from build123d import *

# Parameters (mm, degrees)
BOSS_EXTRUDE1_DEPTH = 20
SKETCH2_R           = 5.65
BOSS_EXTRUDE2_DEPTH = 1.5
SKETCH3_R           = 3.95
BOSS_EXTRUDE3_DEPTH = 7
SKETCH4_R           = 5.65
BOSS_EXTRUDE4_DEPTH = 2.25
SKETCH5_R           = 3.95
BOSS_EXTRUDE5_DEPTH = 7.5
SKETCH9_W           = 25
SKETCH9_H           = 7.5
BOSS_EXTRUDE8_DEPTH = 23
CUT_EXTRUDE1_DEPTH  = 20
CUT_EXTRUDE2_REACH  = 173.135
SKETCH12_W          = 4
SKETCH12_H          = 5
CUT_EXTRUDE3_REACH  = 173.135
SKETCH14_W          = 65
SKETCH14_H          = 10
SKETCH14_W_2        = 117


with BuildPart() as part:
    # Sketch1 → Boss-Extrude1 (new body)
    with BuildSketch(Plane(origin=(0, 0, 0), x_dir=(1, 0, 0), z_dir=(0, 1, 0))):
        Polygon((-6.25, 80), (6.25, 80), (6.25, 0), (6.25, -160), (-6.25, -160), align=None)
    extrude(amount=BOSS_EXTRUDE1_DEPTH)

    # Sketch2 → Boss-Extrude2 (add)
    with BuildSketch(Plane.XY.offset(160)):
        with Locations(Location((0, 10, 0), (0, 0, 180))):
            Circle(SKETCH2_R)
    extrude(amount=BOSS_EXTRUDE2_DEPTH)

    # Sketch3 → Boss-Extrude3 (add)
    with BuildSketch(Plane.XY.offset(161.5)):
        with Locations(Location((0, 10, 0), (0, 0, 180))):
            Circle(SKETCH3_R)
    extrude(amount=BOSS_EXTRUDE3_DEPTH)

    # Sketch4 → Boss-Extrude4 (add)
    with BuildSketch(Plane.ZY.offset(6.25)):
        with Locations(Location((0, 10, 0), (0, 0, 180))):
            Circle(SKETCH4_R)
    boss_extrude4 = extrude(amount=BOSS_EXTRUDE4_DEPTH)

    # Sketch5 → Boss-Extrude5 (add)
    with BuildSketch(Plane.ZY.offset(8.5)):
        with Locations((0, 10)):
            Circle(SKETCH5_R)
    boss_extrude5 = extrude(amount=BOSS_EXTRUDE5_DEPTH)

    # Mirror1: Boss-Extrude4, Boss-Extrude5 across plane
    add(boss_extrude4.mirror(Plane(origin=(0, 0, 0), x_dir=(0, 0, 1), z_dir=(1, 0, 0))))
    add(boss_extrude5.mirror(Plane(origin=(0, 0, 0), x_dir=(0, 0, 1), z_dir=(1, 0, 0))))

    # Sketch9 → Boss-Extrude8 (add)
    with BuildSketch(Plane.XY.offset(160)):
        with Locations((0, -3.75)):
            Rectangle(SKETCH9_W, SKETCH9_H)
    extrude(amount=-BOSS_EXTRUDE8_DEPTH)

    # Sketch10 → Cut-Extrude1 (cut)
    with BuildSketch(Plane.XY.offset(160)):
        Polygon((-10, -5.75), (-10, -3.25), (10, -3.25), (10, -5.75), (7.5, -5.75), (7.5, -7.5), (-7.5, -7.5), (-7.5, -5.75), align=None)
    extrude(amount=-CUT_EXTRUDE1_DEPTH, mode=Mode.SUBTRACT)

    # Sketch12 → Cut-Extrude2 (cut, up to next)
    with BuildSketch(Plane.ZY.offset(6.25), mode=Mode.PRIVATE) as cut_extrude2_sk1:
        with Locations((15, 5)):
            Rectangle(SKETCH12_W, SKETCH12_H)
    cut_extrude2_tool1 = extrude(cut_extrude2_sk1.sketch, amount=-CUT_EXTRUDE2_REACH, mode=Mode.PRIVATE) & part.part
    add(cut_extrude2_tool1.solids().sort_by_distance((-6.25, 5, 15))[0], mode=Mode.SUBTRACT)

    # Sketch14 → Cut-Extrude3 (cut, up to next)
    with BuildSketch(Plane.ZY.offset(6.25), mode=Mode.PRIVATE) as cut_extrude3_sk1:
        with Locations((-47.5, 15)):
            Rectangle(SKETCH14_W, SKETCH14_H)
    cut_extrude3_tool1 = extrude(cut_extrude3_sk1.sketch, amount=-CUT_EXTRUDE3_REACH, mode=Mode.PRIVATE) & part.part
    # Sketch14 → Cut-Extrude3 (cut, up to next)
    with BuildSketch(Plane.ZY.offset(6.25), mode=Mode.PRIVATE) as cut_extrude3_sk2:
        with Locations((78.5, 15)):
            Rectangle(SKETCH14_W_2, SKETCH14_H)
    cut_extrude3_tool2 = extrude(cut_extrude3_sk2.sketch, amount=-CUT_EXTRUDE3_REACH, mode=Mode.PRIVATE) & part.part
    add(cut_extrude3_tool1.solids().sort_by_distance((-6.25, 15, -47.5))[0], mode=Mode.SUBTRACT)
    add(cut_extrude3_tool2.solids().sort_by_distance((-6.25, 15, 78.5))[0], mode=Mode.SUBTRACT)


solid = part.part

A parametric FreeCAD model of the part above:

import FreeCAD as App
import Part
import Sketcher
from FreeCAD import Vector

doc = App.newDocument("Part")
params = doc.addObject("Spreadsheet::Sheet", "Params")
for row, (alias, value) in enumerate([
    ("sketch1_height", "240 mm"),
    ("sketch1_width", "12.5 mm"),
    ("pad1_length", "20 mm"),
    ("sketch2_diameter", "11.3 mm"),
    ("pad2_length", "1.5 mm"),
    ("sketch3_diameter", "7.9 mm"),
    ("pad3_length", "7 mm"),
    ("sketch4_diameter", "11.3 mm"),
    ("pad4_length", "2.25 mm"),
    ("sketch5_diameter", "7.9 mm"),
    ("pad5_length", "7.5 mm"),
    ("sketch6_width", "25 mm"),
    ("sketch6_height", "7.5 mm"),
    ("pad6_length", "23 mm"),
    ("sketch7_width", "15 mm"),
    ("sketch7_width2", "20 mm"),
    ("sketch7_height", "1.75 mm"),
    ("pocket1_length", "20 mm"),
    ("sketch8_width", "5 mm"),
    ("sketch8_height", "4 mm"),
    ("sketch9_width", "10 mm"),
    ("sketch9_height", "65 mm"),
    ("sketch10_width", "10 mm"),
    ("sketch10_height", "117 mm"),
], start=1):
    params.set(f"A{row}", alias)
    params.set(f"B{row}", "=" + value)
    params.setAlias(f"B{row}", alias)

body = doc.addObject("PartDesign::Body", "Body")

# Sketch on XZ plane
sketch1 = doc.addObject("Sketcher::SketchObject", "Sketch")
body.addObject(sketch1)
sketch1.AttachmentSupport = (doc.XZ_Plane, [""])
sketch1.MapMode = "FlatFace"
sketch1.addGeometry([
    Part.LineSegment(Vector(6, -80, 0), Vector(-6, -80, 0)),
    Part.LineSegment(Vector(-6, -80, 0), Vector(-6, 160, 0)),
    Part.LineSegment(Vector(-6, 160, 0), Vector(6, 160, 0)),
    Part.LineSegment(Vector(6, 160, 0), Vector(6, -80, 0)),
], False)
sketch1.addConstraint([
    Sketcher.Constraint("Coincident", 0, 2, 1, 1),
    Sketcher.Constraint("Coincident", 1, 2, 2, 1),
    Sketcher.Constraint("Coincident", 2, 2, 3, 1),
    Sketcher.Constraint("Coincident", 3, 2, 0, 1),
    Sketcher.Constraint("Horizontal", 0),
    Sketcher.Constraint("Vertical", 1),
    Sketcher.Constraint("Horizontal", 2),
    Sketcher.Constraint("Vertical", 3),
    Sketcher.Constraint("DistanceY", 1, 1, 1, 2, 240.0),
    Sketcher.Constraint("DistanceX", 0, 2, 0, 1, 12.5),
    Sketcher.Constraint("DistanceY", 0, 2, -1, 1, 80.0),
    Sketcher.Constraint("DistanceX", 0, 2, -1, 1, 6.25),
])
sketch1.setExpression("Constraints[8]", "Params.sketch1_height")
sketch1.setExpression("Constraints[9]", "Params.sketch1_width")
pad1 = doc.addObject("PartDesign::Pad", "Pad")
body.addObject(pad1)
pad1.Profile = sketch1
pad1.setExpression("Length", "Params.pad1_length")
pad1.Reversed = True

# Sketch on XY plane
sketch2 = doc.addObject("Sketcher::SketchObject", "Sketch001")
body.addObject(sketch2)
sketch2.AttachmentSupport = (doc.XY_Plane, [""])
sketch2.MapMode = "FlatFace"
sketch2.AttachmentOffset = App.Placement(Vector(0, 0, 160), App.Rotation())
sketch2.addGeometry(Part.Circle(Vector(0, 10, 0), Vector(0, 0, 1), 6), False)
sketch2.addConstraint([
    Sketcher.Constraint("PointOnObject", 0, 3, -2),
    Sketcher.Constraint("Diameter", 0, 11.3),
    Sketcher.Constraint("DistanceY", -1, 1, 0, 3, 10.0),
])
sketch2.setExpression("Constraints[1]", "Params.sketch2_diameter")
pad2 = doc.addObject("PartDesign::Pad", "Pad001")
body.addObject(pad2)
pad2.Profile = sketch2
pad2.setExpression("Length", "Params.pad2_length")

# Sketch on XY plane
sketch3 = doc.addObject("Sketcher::SketchObject", "Sketch002")
body.addObject(sketch3)
sketch3.AttachmentSupport = (doc.XY_Plane, [""])
sketch3.MapMode = "FlatFace"
sketch3.AttachmentOffset = App.Placement(Vector(0, 0, 161.5), App.Rotation())
sketch3.addGeometry(Part.Circle(Vector(0, 10, 0), Vector(0, 0, 1), 4), False)
sketch3.addConstraint([
    Sketcher.Constraint("PointOnObject", 0, 3, -2),
    Sketcher.Constraint("Diameter", 0, 7.9),
    Sketcher.Constraint("DistanceY", -1, 1, 0, 3, 10.0),
])
sketch3.setExpression("Constraints[1]", "Params.sketch3_diameter")
pad3 = doc.addObject("PartDesign::Pad", "Pad002")
body.addObject(pad3)
pad3.Profile = sketch3
pad3.setExpression("Length", "Params.pad3_length")

# Sketch on YZ plane
sketch4 = doc.addObject("Sketcher::SketchObject", "Sketch003")
body.addObject(sketch4)
sketch4.AttachmentSupport = (doc.YZ_Plane, [""])
sketch4.MapMode = "FlatFace"
sketch4.AttachmentOffset = App.Placement(Vector(0, 0, -6.25), App.Rotation())
sketch4.addGeometry(Part.Circle(Vector(10, 0, 0), Vector(0, 0, 1), 6), False)
sketch4.addConstraint([
    Sketcher.Constraint("PointOnObject", 0, 3, -1),
    Sketcher.Constraint("Diameter", 0, 11.3),
    Sketcher.Constraint("DistanceX", -1, 1, 0, 3, 10.0),
])
sketch4.setExpression("Constraints[1]", "Params.sketch4_diameter")
pad4 = doc.addObject("PartDesign::Pad", "Pad003")
body.addObject(pad4)
pad4.Profile = sketch4
pad4.setExpression("Length", "Params.pad4_length")
pad4.Reversed = True

# Sketch on YZ plane
sketch5 = doc.addObject("Sketcher::SketchObject", "Sketch004")
body.addObject(sketch5)
sketch5.AttachmentSupport = (doc.YZ_Plane, [""])
sketch5.MapMode = "FlatFace"
sketch5.AttachmentOffset = App.Placement(Vector(0, 0, -8.5), App.Rotation())
sketch5.addGeometry(Part.Circle(Vector(10, 0, 0), Vector(0, 0, 1), 4), False)
sketch5.addConstraint([
    Sketcher.Constraint("PointOnObject", 0, 3, -1),
    Sketcher.Constraint("Diameter", 0, 7.9),
    Sketcher.Constraint("DistanceX", -1, 1, 0, 3, 10.0),
])
sketch5.setExpression("Constraints[1]", "Params.sketch5_diameter")
pad5 = doc.addObject("PartDesign::Pad", "Pad004")
body.addObject(pad5)
pad5.Profile = sketch5
pad5.setExpression("Length", "Params.pad5_length")
pad5.Reversed = True
doc.recompute()

mirrored = doc.addObject("PartDesign::Mirrored", "Mirrored")
body.addObject(mirrored)
mirrored.Originals = [pad4, pad5]
mirrored.MirrorPlane = (doc.YZ_Plane, [""])
body.Tip = mirrored

# Sketch on XY plane
sketch6 = doc.addObject("Sketcher::SketchObject", "Sketch005")
body.addObject(sketch6)
sketch6.AttachmentSupport = (doc.XY_Plane, [""])
sketch6.MapMode = "FlatFace"
sketch6.AttachmentOffset = App.Placement(Vector(0, 0, 160), App.Rotation())
sketch6.addGeometry([
    Part.LineSegment(Vector(-12, 0, 0), Vector(-12, -8, 0)),
    Part.LineSegment(Vector(-12, -8, 0), Vector(12, -8, 0)),
    Part.LineSegment(Vector(12, -8, 0), Vector(12, 0, 0)),
    Part.LineSegment(Vector(12, 0, 0), Vector(-12, 0, 0)),
], False)
sketch6.addConstraint([
    Sketcher.Constraint("Coincident", 0, 2, 1, 1),
    Sketcher.Constraint("Coincident", 1, 2, 2, 1),
    Sketcher.Constraint("Coincident", 2, 2, 3, 1),
    Sketcher.Constraint("Coincident", 3, 2, 0, 1),
    Sketcher.Constraint("Vertical", 0),
    Sketcher.Constraint("Horizontal", 1),
    Sketcher.Constraint("Vertical", 2),
    Sketcher.Constraint("Horizontal", 3),
    Sketcher.Constraint("Symmetric", 2, 2, 3, 2, -1, 1),
    Sketcher.Constraint("DistanceX", 1, 1, 1, 2, 25.0),
    Sketcher.Constraint("DistanceY", 0, 2, 0, 1, 7.5),
])
sketch6.setExpression("Constraints[9]", "Params.sketch6_width")
sketch6.setExpression("Constraints[10]", "Params.sketch6_height")
pad6 = doc.addObject("PartDesign::Pad", "Pad005")
body.addObject(pad6)
pad6.Profile = sketch6
pad6.setExpression("Length", "Params.pad6_length")
pad6.Reversed = True

# Sketch on XY plane
sketch7 = doc.addObject("Sketcher::SketchObject", "Sketch006")
body.addObject(sketch7)
sketch7.AttachmentSupport = (doc.XY_Plane, [""])
sketch7.MapMode = "FlatFace"
sketch7.AttachmentOffset = App.Placement(Vector(0, 0, 160), App.Rotation())
sketch7.addGeometry([
    Part.LineSegment(Vector(-10, -3.2, 0), Vector(-10, -5.8, 0)),  # 0
    Part.LineSegment(Vector(-10, -5.8, 0), Vector(-7.5, -5.8, 0)),  # 1
    Part.LineSegment(Vector(-7.5, -5.8, 0), Vector(-7.5, -7.5, 0)),  # 2
    Part.LineSegment(Vector(-7.5, -7.5, 0), Vector(7.5, -7.5, 0)),  # 3
    Part.LineSegment(Vector(7.5, -7.5, 0), Vector(7.5, -5.8, 0)),  # 4
    Part.LineSegment(Vector(7.5, -5.8, 0), Vector(10, -5.8, 0)),  # 5
    Part.LineSegment(Vector(10, -5.8, 0), Vector(10, -3.2, 0)),  # 6
    Part.LineSegment(Vector(10, -3.2, 0), Vector(-10, -3.2, 0)),  # 7
], False)
sketch7.addConstraint([
    Sketcher.Constraint("Coincident", 0, 2, 1, 1),
    Sketcher.Constraint("Coincident", 1, 2, 2, 1),
    Sketcher.Constraint("Coincident", 2, 2, 3, 1),
    Sketcher.Constraint("Coincident", 3, 2, 4, 1),
    Sketcher.Constraint("Coincident", 4, 2, 5, 1),
    Sketcher.Constraint("Coincident", 5, 2, 6, 1),
    Sketcher.Constraint("Coincident", 6, 2, 7, 1),
    Sketcher.Constraint("Coincident", 7, 2, 0, 1),
    Sketcher.Constraint("Vertical", 0),
    Sketcher.Constraint("Horizontal", 1),
    Sketcher.Constraint("Vertical", 2),
    Sketcher.Constraint("Horizontal", 3),
    Sketcher.Constraint("Vertical", 4),
    Sketcher.Constraint("Horizontal", 5),
    Sketcher.Constraint("Vertical", 6),
    Sketcher.Constraint("Horizontal", 7),
    Sketcher.Constraint("Symmetric", 1, 2, 4, 2, -2),
    Sketcher.Constraint("Equal", 1, 5),
    Sketcher.Constraint("Equal", 5, 0),
    Sketcher.Constraint("DistanceX", 3, 1, 3, 2, 15.0),
    Sketcher.Constraint("DistanceX", 7, 2, 7, 1, 20.0),
    Sketcher.Constraint("DistanceY", 2, 2, 2, 1, 1.75),
    Sketcher.Constraint("DistanceY", 2, 2, -1, 1, 7.5),
])
sketch7.setExpression("Constraints[19]", "Params.sketch7_width")
sketch7.setExpression("Constraints[20]", "Params.sketch7_width2")
sketch7.setExpression("Constraints[21]", "Params.sketch7_height")
pocket1 = doc.addObject("PartDesign::Pocket", "Pocket")
body.addObject(pocket1)
pocket1.Profile = sketch7
pocket1.setExpression("Length", "Params.pocket1_length")

# Sketch on YZ plane
sketch8 = doc.addObject("Sketcher::SketchObject", "Sketch007")
body.addObject(sketch8)
sketch8.AttachmentSupport = (doc.YZ_Plane, [""])
sketch8.MapMode = "FlatFace"
sketch8.AttachmentOffset = App.Placement(Vector(0, 0, -6.25), App.Rotation())
sketch8.addGeometry([
    Part.LineSegment(Vector(7.5, 13, 0), Vector(2.5, 13, 0)),
    Part.LineSegment(Vector(2.5, 13, 0), Vector(2.5, 17, 0)),
    Part.LineSegment(Vector(2.5, 17, 0), Vector(7.5, 17, 0)),
    Part.LineSegment(Vector(7.5, 17, 0), Vector(7.5, 13, 0)),
], False)
sketch8.addConstraint([
    Sketcher.Constraint("Coincident", 0, 2, 1, 1),
    Sketcher.Constraint("Coincident", 1, 2, 2, 1),
    Sketcher.Constraint("Coincident", 2, 2, 3, 1),
    Sketcher.Constraint("Coincident", 3, 2, 0, 1),
    Sketcher.Constraint("Horizontal", 0),
    Sketcher.Constraint("Vertical", 1),
    Sketcher.Constraint("Horizontal", 2),
    Sketcher.Constraint("Vertical", 3),
    Sketcher.Constraint("DistanceX", 0, 2, 0, 1, 5.0),
    Sketcher.Constraint("DistanceY", 1, 1, 1, 2, 4.0),
    Sketcher.Constraint("DistanceY", -1, 1, 0, 2, 13.0),
    Sketcher.Constraint("DistanceX", -1, 1, 0, 2, 2.5),
])
sketch8.setExpression("Constraints[8]", "Params.sketch8_width")
sketch8.setExpression("Constraints[9]", "Params.sketch8_height")
pocket2 = doc.addObject("PartDesign::Pocket", "Pocket001")
body.addObject(pocket2)
pocket2.Profile = sketch8
pocket2.Type = "UpToFirst"
pocket2.Reversed = True

# Sketch on YZ plane
sketch9 = doc.addObject("Sketcher::SketchObject", "Sketch008")
body.addObject(sketch9)
sketch9.AttachmentSupport = (doc.YZ_Plane, [""])
sketch9.MapMode = "FlatFace"
sketch9.AttachmentOffset = App.Placement(Vector(0, 0, -6.25), App.Rotation())
sketch9.addGeometry([
    Part.LineSegment(Vector(20, -80, 0), Vector(10, -80, 0)),
    Part.LineSegment(Vector(10, -80, 0), Vector(10, -15, 0)),
    Part.LineSegment(Vector(10, -15, 0), Vector(20, -15, 0)),
    Part.LineSegment(Vector(20, -15, 0), Vector(20, -80, 0)),
], False)
sketch9.addConstraint([
    Sketcher.Constraint("Coincident", 0, 2, 1, 1),
    Sketcher.Constraint("Coincident", 1, 2, 2, 1),
    Sketcher.Constraint("Coincident", 2, 2, 3, 1),
    Sketcher.Constraint("Coincident", 3, 2, 0, 1),
    Sketcher.Constraint("Horizontal", 0),
    Sketcher.Constraint("Vertical", 1),
    Sketcher.Constraint("Horizontal", 2),
    Sketcher.Constraint("Vertical", 3),
    Sketcher.Constraint("DistanceX", 0, 2, 0, 1, 10.0),
    Sketcher.Constraint("DistanceY", 1, 1, 1, 2, 65.0),
    Sketcher.Constraint("DistanceX", -1, 1, 0, 2, 10.0),
    Sketcher.Constraint("DistanceY", 0, 2, -1, 1, 80.0),
])
sketch9.setExpression("Constraints[8]", "Params.sketch9_width")
sketch9.setExpression("Constraints[9]", "Params.sketch9_height")
pocket3 = doc.addObject("PartDesign::Pocket", "Pocket002")
body.addObject(pocket3)
pocket3.Profile = sketch9
pocket3.Type = "UpToFirst"
pocket3.Reversed = True

# Sketch on YZ plane
sketch10 = doc.addObject("Sketcher::SketchObject", "Sketch009")
body.addObject(sketch10)
sketch10.AttachmentSupport = (doc.YZ_Plane, [""])
sketch10.MapMode = "FlatFace"
sketch10.AttachmentOffset = App.Placement(Vector(0, 0, -6.25), App.Rotation())
sketch10.addGeometry([
    Part.LineSegment(Vector(20, 20, 0), Vector(10, 20, 0)),
    Part.LineSegment(Vector(10, 20, 0), Vector(10, 137, 0)),
    Part.LineSegment(Vector(10, 137, 0), Vector(20, 137, 0)),
    Part.LineSegment(Vector(20, 137, 0), Vector(20, 20, 0)),
], False)
sketch10.addConstraint([
    Sketcher.Constraint("Coincident", 0, 2, 1, 1),
    Sketcher.Constraint("Coincident", 1, 2, 2, 1),
    Sketcher.Constraint("Coincident", 2, 2, 3, 1),
    Sketcher.Constraint("Coincident", 3, 2, 0, 1),
    Sketcher.Constraint("Horizontal", 0),
    Sketcher.Constraint("Vertical", 1),
    Sketcher.Constraint("Horizontal", 2),
    Sketcher.Constraint("Vertical", 3),
    Sketcher.Constraint("DistanceX", 0, 2, 0, 1, 10.0),
    Sketcher.Constraint("DistanceY", 1, 1, 1, 2, 117.0),
    Sketcher.Constraint("DistanceX", -1, 1, 0, 2, 10.0),
    Sketcher.Constraint("DistanceY", -1, 1, 0, 2, 20.0),
])
sketch10.setExpression("Constraints[8]", "Params.sketch10_width")
sketch10.setExpression("Constraints[9]", "Params.sketch10_height")
pocket4 = doc.addObject("PartDesign::Pocket", "Pocket003")
body.addObject(pocket4)
pocket4.Profile = sketch10
pocket4.Type = "UpToFirst"
pocket4.Reversed = True

doc.recompute()
